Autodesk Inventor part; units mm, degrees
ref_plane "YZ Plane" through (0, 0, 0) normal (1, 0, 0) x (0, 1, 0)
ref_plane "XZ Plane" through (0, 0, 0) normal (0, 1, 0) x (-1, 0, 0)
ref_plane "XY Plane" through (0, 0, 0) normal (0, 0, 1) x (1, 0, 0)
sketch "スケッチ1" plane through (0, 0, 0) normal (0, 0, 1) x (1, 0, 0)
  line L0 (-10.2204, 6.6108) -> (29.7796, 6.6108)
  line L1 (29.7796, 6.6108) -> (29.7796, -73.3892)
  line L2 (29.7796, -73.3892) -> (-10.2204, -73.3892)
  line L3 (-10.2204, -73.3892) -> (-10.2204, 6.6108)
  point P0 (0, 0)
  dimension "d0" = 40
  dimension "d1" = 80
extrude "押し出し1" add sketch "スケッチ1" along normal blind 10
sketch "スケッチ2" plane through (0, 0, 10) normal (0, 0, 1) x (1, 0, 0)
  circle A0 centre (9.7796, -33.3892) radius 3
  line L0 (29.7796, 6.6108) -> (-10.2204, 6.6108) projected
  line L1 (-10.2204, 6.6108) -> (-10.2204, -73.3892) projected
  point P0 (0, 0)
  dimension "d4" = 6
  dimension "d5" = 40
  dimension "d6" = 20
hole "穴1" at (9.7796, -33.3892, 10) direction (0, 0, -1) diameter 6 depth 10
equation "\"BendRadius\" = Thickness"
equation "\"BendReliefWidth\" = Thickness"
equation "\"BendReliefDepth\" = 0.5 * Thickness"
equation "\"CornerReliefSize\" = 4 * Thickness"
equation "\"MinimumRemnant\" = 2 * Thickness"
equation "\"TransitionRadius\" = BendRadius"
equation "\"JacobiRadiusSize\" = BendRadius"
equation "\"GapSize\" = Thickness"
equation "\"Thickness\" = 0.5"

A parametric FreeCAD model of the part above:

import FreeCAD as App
import Part
import Sketcher

V = App.Vector

doc = App.newDocument("Part")
body = doc.addObject("PartDesign::Body", "Body")

# Sketch on XY plane
sketch1 = body.newObject("Sketcher::SketchObject", "Sketch")
sketch1.AttachmentSupport = (doc.getObject("XY_Plane"), [""])
sketch1.MapMode = "FlatFace"
sketch1.addGeometry([
    Part.LineSegment(V(30, 7, 0), V(-10, 7, 0)),
    Part.LineSegment(V(-10, 7, 0), V(-10, -73, 0)),
    Part.LineSegment(V(-10, -73, 0), V(30, -73, 0)),
    Part.LineSegment(V(30, -73, 0), V(30, 7, 0)),
], False)
sketch1.addConstraint([
    Sketcher.Constraint("Coincident", 0, 2, 1, 1),
    Sketcher.Constraint("Coincident", 1, 2, 2, 1),
    Sketcher.Constraint("Coincident", 2, 2, 3, 1),
    Sketcher.Constraint("Coincident", 3, 2, 0, 1),
    Sketcher.Constraint("Horizontal", 0),
    Sketcher.Constraint("Vertical", 1),
    Sketcher.Constraint("Horizontal", 2),
    Sketcher.Constraint("Vertical", 3),
    Sketcher.Constraint("DistanceX", 0, 2, 0, 1, 40.0),
    Sketcher.Constraint("DistanceY", 1, 2, 1, 1, 80.0),
    Sketcher.Constraint("DistanceX", 0, 2, -1, 1, 10.2204),
    Sketcher.Constraint("DistanceY", -1, 1, 0, 2, 6.6108),
])
pad1 = body.newObject("PartDesign::Pad", "Pad")
pad1.Profile = sketch1
pad1.Length = 10

# Sketch on XY plane
sketch2 = body.newObject("Sketcher::SketchObject", "Sketch001")
sketch2.AttachmentSupport = (doc.getObject("XY_Plane"), [""])
sketch2.MapMode = "FlatFace"
sketch2.AttachmentOffset = App.Placement(V(0, 0, 10), App.Rotation())
sketch2.addGeometry(Part.Circle(V(9.8, -33.4, 0), V(0, 0, 1), 3), False)
sketch2.addConstraint([
    Sketcher.Constraint("Diameter", 0, 6.0),
    Sketcher.Constraint("DistanceX", -1, 1, 0, 3, 9.7796),
    Sketcher.Constraint("DistanceY", 0, 3, -1, 1, 33.3892),
])
doc.recompute()
hole = body.newObject("PartDesign::Hole", "Hole")
hole.Profile = sketch2
hole.ThreadType = "None"
hole.Diameter = 6
hole.DepthType = "Dimension"
hole.Depth = 10
hole.DrillPoint = "Flat"

doc.recompute()
